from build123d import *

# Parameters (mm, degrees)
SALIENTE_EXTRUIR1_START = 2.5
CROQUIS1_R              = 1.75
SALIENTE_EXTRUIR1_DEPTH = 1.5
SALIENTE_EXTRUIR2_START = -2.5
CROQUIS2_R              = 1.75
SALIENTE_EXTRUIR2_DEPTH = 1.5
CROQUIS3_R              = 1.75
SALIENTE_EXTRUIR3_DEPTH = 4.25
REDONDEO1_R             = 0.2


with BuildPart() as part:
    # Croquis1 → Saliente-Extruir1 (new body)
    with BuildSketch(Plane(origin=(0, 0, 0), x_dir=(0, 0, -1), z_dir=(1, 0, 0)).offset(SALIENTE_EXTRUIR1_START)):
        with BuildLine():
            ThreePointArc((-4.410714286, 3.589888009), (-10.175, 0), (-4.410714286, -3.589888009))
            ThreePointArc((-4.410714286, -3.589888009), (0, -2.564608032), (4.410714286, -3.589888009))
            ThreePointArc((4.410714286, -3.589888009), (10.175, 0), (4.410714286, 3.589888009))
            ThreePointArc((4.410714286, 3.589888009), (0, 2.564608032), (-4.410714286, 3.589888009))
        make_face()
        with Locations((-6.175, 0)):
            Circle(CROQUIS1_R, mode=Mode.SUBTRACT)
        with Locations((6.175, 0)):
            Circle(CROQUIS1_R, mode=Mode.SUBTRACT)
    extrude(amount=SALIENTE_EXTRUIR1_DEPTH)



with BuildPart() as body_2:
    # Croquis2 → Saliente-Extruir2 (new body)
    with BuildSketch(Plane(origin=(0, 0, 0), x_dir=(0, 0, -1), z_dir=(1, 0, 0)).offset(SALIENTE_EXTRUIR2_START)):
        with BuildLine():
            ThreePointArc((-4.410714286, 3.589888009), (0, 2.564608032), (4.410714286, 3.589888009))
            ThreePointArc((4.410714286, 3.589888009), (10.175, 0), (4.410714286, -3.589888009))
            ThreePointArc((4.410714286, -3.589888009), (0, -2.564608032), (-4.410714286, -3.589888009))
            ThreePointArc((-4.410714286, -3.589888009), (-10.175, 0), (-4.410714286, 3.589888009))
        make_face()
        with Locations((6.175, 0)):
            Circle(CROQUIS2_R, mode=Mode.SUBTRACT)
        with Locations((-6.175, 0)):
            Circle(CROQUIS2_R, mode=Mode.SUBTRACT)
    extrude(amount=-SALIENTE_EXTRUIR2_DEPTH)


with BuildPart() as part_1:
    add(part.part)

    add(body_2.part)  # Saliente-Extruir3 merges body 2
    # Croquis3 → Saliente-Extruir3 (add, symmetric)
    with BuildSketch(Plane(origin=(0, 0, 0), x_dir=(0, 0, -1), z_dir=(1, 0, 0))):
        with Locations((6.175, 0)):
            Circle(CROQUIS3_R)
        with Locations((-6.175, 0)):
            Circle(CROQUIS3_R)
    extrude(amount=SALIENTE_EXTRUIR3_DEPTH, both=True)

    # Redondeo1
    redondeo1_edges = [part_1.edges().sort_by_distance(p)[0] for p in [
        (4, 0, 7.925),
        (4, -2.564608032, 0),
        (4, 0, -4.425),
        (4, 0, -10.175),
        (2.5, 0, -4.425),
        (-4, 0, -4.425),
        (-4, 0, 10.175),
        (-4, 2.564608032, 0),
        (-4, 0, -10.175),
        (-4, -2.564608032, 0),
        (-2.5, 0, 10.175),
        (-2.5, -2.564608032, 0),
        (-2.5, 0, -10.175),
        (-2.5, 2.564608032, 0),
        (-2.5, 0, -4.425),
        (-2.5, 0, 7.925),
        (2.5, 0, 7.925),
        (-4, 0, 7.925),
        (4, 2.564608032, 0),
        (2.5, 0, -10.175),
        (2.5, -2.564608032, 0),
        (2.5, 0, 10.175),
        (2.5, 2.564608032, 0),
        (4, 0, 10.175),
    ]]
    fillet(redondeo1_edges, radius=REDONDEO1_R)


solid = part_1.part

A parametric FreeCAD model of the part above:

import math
import FreeCAD as App
import Part
import Sketcher
Q = App.Units.Quantity


def edges_at(feature, points):
    """Names of the edges that pass closest to the given points."""
    edges = feature.Shape.Edges
    near = lambda p: min(range(len(edges)), key=lambda i: edges[i].distToShape(Part.Vertex(*p))[0])
    return sorted({f"Edge{near(p) + 1}" for p in points})

doc = App.newDocument("Part")
body = doc.addObject("PartDesign::Body", "Body")

sketch1 = body.newObject("Sketcher::SketchObject", "Sketch")
sketch1.AttachmentSupport = (doc.getObject("YZ_Plane"), [""])
sketch1.MapMode = "FlatFace"
sketch1.AttachmentOffset = App.Placement(App.Vector(0, 0, 2.5), App.Rotation())
sketch1.addGeometry(Part.ArcOfCircle(Part.Circle(App.Vector(0, 6.175, 0), App.Vector(0, 0, 1), 4), math.radians(-26.172262), math.radians(206.172262)), False)
sketch1.addGeometry(Part.ArcOfCircle(Part.Circle(App.Vector(-12.564608, 0, 0), App.Vector(0, 0, 1), 10), math.radians(-26.172262), math.radians(26.172262)), False)
sketch1.addGeometry(Part.ArcOfCircle(Part.Circle(App.Vector(0, -6.175, 0), App.Vector(0, 0, 1), 4), math.radians(153.827738), math.radians(386.172262)), False)
sketch1.addGeometry(Part.ArcOfCircle(Part.Circle(App.Vector(12.564608, 0, 0), App.Vector(0, 0, 1), 10), math.radians(153.827738), math.radians(206.172262)), False)
sketch1.addGeometry(Part.Circle(App.Vector(0, 6.175, 0), App.Vector(0, 0, 1), 1.75), False)
sketch1.addGeometry(Part.Circle(App.Vector(0, -6.175, 0), App.Vector(0, 0, 1), 1.75), False)
sketch1.addConstraint(Sketcher.Constraint("Tangent", 0, 2, 1, 2))
sketch1.addConstraint(Sketcher.Constraint("Tangent", 1, 1, 2, 1))
sketch1.addConstraint(Sketcher.Constraint("Tangent", 2, 2, 3, 2))
sketch1.addConstraint(Sketcher.Constraint("Tangent", 3, 1, 0, 1))
sketch1.addConstraint(Sketcher.Constraint("Coincident", 4, 3, 0, 3))
sketch1.addConstraint(Sketcher.Constraint("Coincident", 5, 3, 2, 3))
sketch1.addConstraint(Sketcher.Constraint("Equal", 0, 2))
sketch1.addConstraint(Sketcher.Constraint("Equal", 1, 3))
sketch1.addConstraint(Sketcher.Constraint("Equal", 4, 5))
sketch1.addConstraint(Sketcher.Constraint("Symmetric", 0, 3, 2, 3, -1, 1))
sketch1.addConstraint(Sketcher.Constraint("PointOnObject", 0, 3, -2))
sketch1.addConstraint(Sketcher.Constraint("Radius", 0, Q("4 mm")))
sketch1.addConstraint(Sketcher.Constraint("Radius", 1, Q("10 mm")))
sketch1.addConstraint(Sketcher.Constraint("Diameter", 4, Q("3.5 mm")))
sketch1.addConstraint(Sketcher.Constraint("DistanceY", 2, 3, 0, 3, Q("12.35 mm")))
pad1 = body.newObject("PartDesign::Pad", "Pad")
pad1.Profile = sketch1
pad1.Length = 1.5
body2 = doc.addObject("PartDesign::Body", "Body001")

sketch2 = body2.newObject("Sketcher::SketchObject", "Sketch001")
sketch2.AttachmentSupport = (doc.getObject("YZ_Plane001"), [""])
sketch2.MapMode = "FlatFace"
sketch2.AttachmentOffset = App.Placement(App.Vector(0, 0, -2.5), App.Rotation())
sketch2.addGeometry(Part.ArcOfCircle(Part.Circle(App.Vector(12.564608, 0, 0), App.Vector(0, 0, 1), 10), math.radians(153.827738), math.radians(206.172262)), False)
sketch2.addGeometry(Part.ArcOfCircle(Part.Circle(App.Vector(0, 6.175, 0), App.Vector(0, 0, 1), 4), math.radians(-26.172262), math.radians(206.172262)), False)
sketch2.addGeometry(Part.ArcOfCircle(Part.Circle(App.Vector(-12.564608, 0, 0), App.Vector(0, 0, 1), 10), math.radians(-26.172262), math.radians(26.172262)), False)
sketch2.addGeometry(Part.ArcOfCircle(Part.Circle(App.Vector(0, -6.175, 0), App.Vector(0, 0, 1), 4), math.radians(153.827738), math.radians(386.172262)), False)
sketch2.addGeometry(Part.Circle(App.Vector(0, -6.175, 0), App.Vector(0, 0, 1), 1.75), False)
sketch2.addGeometry(Part.Circle(App.Vector(0, 6.175, 0), App.Vector(0, 0, 1), 1.75), False)
sketch2.addConstraint(Sketcher.Constraint("Tangent", 0, 1, 1, 1))
sketch2.addConstraint(Sketcher.Constraint("Tangent", 1, 2, 2, 2))
sketch2.addConstraint(Sketcher.Constraint("Tangent", 2, 1, 3, 1))
sketch2.addConstraint(Sketcher.Constraint("Tangent", 3, 2, 0, 2))
sketch2.addConstraint(Sketcher.Constraint("Coincident", 4, 3, 3, 3))
sketch2.addConstraint(Sketcher.Constraint("Coincident", 5, 3, 1, 3))
sketch2.addConstraint(Sketcher.Constraint("Equal", 0, 2))
sketch2.addConstraint(Sketcher.Constraint("Equal", 1, 3))
sketch2.addConstraint(Sketcher.Constraint("Equal", 4, 5))
sketch2.addConstraint(Sketcher.Constraint("Symmetric", 0, 3, 2, 3, -1, 1))
sketch2.addConstraint(Sketcher.Constraint("PointOnObject", 0, 3, -1))
sketch2.addConstraint(Sketcher.Constraint("Radius", 0, Q("10 mm")))
sketch2.addConstraint(Sketcher.Constraint("Radius", 1, Q("4 mm")))
sketch2.addConstraint(Sketcher.Constraint("Diameter", 4, Q("3.5 mm")))
sketch2.addConstraint(Sketcher.Constraint("DistanceY", 3, 3, 1, 3, Q("12.35 mm")))
pad2 = body2.newObject("PartDesign::Pad", "Pad001")
pad2.Profile = sketch2
pad2.Length = 1.5
pad2.Reversed = True
body.AllowCompound = True
doc.recompute()

boolean = body.newObject("PartDesign::Boolean", "Boolean")
boolean.Type = "Fuse"
boolean.addObjects([body2])

sketch3 = body.newObject("Sketcher::SketchObject", "Sketch002")
sketch3.AttachmentSupport = (doc.getObject("YZ_Plane"), [""])
sketch3.MapMode = "FlatFace"
sketch3.addGeometry(Part.Circle(App.Vector(0, -6.175, 0), App.Vector(0, 0, 1), 1.75), False)
sketch3.addGeometry(Part.Circle(App.Vector(0, 6.175, 0), App.Vector(0, 0, 1), 1.75), False)
sketch3.addConstraint(Sketcher.Constraint("Equal", 0, 1))
sketch3.addConstraint(Sketcher.Constraint("Symmetric", 0, 3, 1, 3, -1, 1))
sketch3.addConstraint(Sketcher.Constraint("PointOnObject", 0, 3, -2))
sketch3.addConstraint(Sketcher.Constraint("Diameter", 0, Q("3.5 mm")))
sketch3.addConstraint(Sketcher.Constraint("DistanceY", 0, 3, 1, 3, Q("12.35 mm")))
pad3 = body.newObject("PartDesign::Pad", "Pad002")
pad3.Profile = sketch3
pad3.Length = 8.5
pad3.Midplane = True
doc.recompute()

fillet = body.newObject("PartDesign::Fillet", "Fillet")
fillet.Base = (pad3, edges_at(pad3, [
    (4, 0, 7.925),
    (4, -2.565, 0),
    (4, 0, -4.425),
    (4, 0, -10.175),
    (2.5, 0, -4.425),
    (-4, 0, -4.425),
    (-4, 0, 10.175),
    (-4, 2.565, 0),
    (-4, 0, -10.175),
    (-4, -2.565, 0),
    (-2.5, 0, 10.175),
    (-2.5, -2.565, 0),
    (-2.5, 0, -10.175),
    (-2.5, 2.565, 0),
    (-2.5, 0, -4.425),
    (-2.5, 0, 7.925),
    (2.5, 0, 7.925),
    (-4, 0, 7.925),
    (4, 2.565, 0),
    (2.5, 0, -10.175),
    (2.5, -2.565, 0),
    (2.5, 0, 10.175),
    (2.5, 2.565, 0),
    (4, 0, 10.175),
]))
fillet.Radius = 0.2

doc.recompute()
